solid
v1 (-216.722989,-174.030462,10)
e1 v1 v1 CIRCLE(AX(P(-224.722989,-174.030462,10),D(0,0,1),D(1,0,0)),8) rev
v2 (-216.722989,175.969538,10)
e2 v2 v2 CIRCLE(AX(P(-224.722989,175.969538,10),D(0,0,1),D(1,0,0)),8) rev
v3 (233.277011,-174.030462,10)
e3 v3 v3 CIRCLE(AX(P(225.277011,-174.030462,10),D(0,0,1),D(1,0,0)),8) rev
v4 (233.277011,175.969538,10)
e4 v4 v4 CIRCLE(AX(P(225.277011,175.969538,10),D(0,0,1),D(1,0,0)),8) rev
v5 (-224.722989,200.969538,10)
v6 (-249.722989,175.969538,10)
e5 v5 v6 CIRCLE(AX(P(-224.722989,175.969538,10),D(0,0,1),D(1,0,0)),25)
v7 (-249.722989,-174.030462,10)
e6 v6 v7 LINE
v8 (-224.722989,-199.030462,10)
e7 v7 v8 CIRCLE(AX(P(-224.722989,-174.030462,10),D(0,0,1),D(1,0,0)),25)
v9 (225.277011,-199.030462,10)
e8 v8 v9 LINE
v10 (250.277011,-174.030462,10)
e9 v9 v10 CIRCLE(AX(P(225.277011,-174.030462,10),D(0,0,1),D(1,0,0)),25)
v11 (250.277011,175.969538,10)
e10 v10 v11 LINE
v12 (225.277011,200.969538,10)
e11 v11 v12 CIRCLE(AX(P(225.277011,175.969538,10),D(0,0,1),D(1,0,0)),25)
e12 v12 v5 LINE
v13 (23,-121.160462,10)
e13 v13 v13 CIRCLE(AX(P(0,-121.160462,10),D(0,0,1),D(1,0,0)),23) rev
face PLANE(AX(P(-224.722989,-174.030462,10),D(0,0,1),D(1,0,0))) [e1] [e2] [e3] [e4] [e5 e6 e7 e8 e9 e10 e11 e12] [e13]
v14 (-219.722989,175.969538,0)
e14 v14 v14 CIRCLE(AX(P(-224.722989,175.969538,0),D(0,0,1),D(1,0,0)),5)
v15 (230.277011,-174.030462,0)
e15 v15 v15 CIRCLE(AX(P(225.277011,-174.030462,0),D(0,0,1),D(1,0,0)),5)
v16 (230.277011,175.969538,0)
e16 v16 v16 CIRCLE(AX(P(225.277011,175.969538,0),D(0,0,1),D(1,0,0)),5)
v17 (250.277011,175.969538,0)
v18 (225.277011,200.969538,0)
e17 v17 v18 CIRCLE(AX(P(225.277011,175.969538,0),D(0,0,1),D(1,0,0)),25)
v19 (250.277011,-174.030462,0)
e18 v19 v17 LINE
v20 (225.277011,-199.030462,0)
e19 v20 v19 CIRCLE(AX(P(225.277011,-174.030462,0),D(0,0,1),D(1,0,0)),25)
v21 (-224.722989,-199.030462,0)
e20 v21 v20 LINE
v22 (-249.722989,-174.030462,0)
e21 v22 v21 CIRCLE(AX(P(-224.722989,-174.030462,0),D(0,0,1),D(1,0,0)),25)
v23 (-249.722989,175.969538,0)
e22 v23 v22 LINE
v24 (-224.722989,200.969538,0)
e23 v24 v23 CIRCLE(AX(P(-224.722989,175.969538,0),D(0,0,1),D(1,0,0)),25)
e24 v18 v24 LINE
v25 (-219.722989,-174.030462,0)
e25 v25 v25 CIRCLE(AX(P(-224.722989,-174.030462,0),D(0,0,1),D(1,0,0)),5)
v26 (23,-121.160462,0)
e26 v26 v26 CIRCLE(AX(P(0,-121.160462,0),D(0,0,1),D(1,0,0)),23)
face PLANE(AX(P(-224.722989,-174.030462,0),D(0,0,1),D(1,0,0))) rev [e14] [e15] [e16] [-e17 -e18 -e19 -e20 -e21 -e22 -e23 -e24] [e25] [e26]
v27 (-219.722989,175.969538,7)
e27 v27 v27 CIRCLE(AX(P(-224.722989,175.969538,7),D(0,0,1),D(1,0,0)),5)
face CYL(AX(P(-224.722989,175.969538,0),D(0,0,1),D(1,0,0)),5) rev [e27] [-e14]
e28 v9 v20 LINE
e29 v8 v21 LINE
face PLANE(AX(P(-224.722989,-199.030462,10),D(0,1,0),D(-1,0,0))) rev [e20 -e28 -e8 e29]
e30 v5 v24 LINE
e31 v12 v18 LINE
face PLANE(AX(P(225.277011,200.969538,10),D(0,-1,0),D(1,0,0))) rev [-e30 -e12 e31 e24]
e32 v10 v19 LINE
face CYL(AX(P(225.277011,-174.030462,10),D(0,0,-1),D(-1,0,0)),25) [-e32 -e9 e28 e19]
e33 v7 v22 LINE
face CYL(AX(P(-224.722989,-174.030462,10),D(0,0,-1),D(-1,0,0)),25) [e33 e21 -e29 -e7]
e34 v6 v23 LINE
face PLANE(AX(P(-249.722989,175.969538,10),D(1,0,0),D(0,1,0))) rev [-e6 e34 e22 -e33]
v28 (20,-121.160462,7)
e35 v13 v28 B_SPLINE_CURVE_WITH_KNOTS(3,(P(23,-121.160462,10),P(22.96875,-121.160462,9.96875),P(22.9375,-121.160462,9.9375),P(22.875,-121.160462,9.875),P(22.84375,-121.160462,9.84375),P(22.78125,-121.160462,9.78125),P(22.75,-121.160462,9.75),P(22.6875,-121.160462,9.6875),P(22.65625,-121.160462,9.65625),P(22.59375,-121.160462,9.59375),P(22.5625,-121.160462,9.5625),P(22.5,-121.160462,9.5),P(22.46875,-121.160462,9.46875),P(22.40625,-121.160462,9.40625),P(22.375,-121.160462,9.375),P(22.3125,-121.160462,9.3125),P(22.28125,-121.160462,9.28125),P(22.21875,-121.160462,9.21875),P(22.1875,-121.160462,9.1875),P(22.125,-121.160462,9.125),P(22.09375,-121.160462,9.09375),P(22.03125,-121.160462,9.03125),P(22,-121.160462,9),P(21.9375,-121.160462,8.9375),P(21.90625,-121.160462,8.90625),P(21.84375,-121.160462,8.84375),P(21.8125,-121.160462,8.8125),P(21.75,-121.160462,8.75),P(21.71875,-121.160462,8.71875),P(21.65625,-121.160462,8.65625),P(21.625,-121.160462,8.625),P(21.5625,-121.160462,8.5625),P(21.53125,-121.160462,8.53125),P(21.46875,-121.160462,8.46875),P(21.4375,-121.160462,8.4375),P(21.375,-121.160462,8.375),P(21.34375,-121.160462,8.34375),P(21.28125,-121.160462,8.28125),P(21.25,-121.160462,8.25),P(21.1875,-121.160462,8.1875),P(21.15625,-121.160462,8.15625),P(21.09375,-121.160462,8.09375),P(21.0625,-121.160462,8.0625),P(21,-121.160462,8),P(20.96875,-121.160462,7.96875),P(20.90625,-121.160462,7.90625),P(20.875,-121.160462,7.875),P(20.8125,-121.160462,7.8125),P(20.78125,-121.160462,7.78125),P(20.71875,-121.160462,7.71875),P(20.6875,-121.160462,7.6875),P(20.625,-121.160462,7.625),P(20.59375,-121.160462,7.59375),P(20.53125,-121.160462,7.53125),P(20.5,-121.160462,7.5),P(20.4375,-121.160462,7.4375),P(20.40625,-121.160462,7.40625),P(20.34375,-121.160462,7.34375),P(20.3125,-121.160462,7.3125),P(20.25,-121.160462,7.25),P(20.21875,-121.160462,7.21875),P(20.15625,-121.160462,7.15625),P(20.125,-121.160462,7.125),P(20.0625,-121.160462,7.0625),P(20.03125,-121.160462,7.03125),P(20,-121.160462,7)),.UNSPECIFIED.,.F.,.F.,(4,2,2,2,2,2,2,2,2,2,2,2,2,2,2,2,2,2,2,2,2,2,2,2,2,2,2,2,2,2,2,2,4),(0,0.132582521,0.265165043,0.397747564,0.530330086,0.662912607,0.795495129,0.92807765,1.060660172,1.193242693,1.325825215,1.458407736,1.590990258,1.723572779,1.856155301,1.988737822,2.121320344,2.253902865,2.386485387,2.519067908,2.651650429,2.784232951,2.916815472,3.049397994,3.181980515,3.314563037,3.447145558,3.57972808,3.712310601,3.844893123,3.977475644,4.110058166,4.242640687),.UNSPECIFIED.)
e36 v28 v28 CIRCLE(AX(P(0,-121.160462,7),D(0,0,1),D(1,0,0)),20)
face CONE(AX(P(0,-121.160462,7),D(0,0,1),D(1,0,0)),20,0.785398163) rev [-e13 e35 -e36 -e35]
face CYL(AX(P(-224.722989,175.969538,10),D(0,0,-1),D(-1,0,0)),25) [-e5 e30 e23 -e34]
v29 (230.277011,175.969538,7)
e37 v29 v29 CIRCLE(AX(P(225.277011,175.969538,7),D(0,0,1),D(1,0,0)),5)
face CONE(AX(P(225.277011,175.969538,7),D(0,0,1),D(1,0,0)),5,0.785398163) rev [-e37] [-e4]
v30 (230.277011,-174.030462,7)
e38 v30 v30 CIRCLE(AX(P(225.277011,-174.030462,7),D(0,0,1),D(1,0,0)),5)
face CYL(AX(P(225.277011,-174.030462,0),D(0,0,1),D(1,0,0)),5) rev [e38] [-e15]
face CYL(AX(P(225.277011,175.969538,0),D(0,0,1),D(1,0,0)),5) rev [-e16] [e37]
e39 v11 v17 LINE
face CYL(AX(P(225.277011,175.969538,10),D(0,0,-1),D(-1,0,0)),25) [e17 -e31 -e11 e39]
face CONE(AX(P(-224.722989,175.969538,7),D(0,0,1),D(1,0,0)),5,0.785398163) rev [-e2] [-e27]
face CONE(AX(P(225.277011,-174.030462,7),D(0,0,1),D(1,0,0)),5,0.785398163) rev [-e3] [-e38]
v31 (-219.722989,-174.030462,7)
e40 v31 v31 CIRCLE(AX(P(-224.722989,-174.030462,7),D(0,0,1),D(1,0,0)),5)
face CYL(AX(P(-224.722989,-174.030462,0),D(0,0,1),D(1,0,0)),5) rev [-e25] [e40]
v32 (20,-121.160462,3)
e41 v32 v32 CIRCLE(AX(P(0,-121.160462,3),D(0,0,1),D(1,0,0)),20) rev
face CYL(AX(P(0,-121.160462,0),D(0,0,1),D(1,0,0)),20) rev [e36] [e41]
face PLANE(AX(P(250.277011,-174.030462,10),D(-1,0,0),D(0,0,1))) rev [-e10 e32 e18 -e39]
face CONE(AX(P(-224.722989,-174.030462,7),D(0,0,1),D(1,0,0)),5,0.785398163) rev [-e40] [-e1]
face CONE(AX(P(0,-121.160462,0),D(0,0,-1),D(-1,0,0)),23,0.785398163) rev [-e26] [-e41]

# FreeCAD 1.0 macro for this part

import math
import FreeCAD as App
import Part
import Sketcher
from FreeCAD import Vector


def edges_at(feature, points):
    """Names of the edges that pass closest to the given points."""
    edges = feature.Shape.Edges
    near = lambda p: min(range(len(edges)), key=lambda i: edges[i].distToShape(Part.Vertex(*p))[0])
    return sorted({f"Edge{near(p) + 1}" for p in points})

doc = App.newDocument("Part")
body = doc.addObject("PartDesign::Body", "Body")

# Sketch on XY plane
sketch1 = body.newObject("Sketcher::SketchObject", "Sketch")
sketch1.AttachmentSupport = (doc.getObject("XY_Plane"), [""])
sketch1.MapMode = "FlatFace"
sketch1.addGeometry([
    Part.LineSegment(Vector(-225, -199, 0), Vector(225, -199, 0)),  # 0
    Part.ArcOfCircle(Part.Circle(Vector(225, -174, 0), Vector(0, 0, 1), 25), math.radians(-90), math.radians(0)),  # 1
    Part.LineSegment(Vector(250, -174, 0), Vector(250, 176, 0)),  # 2
    Part.ArcOfCircle(Part.Circle(Vector(225, 176, 0), Vector(0, 0, 1), 25), math.radians(0), math.radians(90)),  # 3
    Part.LineSegment(Vector(225, 201, 0), Vector(-225, 201, 0)),  # 4
    Part.ArcOfCircle(Part.Circle(Vector(-225, 176, 0), Vector(0, 0, 1), 25), math.radians(90), math.radians(180)),  # 5
    Part.LineSegment(Vector(-250, 176, 0), Vector(-250, -174, 0)),  # 6
    Part.ArcOfCircle(Part.Circle(Vector(-225, -174, 0), Vector(0, 0, 1), 25), math.radians(180), math.radians(270)),  # 7
], False)
sketch1.addConstraint([
    Sketcher.Constraint("Tangent", 0, 2, 1, 1),
    Sketcher.Constraint("Tangent", 1, 2, 2, 1),
    Sketcher.Constraint("Tangent", 2, 2, 3, 1),
    Sketcher.Constraint("Tangent", 3, 2, 4, 1),
    Sketcher.Constraint("Tangent", 4, 2, 5, 1),
    Sketcher.Constraint("Tangent", 5, 2, 6, 1),
    Sketcher.Constraint("Tangent", 6, 2, 7, 1),
    Sketcher.Constraint("Tangent", 7, 2, 0, 1),
    Sketcher.Constraint("Horizontal", 0),
    Sketcher.Constraint("Vertical", 2),
    Sketcher.Constraint("Horizontal", 4),
    Sketcher.Constraint("Vertical", 6),
    Sketcher.Constraint("Equal", 1, 3),
    Sketcher.Constraint("Equal", 3, 5),
    Sketcher.Constraint("Equal", 5, 7),
    Sketcher.Constraint("Radius", 1, 25.0),
    Sketcher.Constraint("DistanceX", 0, 1, 0, 2, 450.0),
    Sketcher.Constraint("DistanceY", 2, 1, 2, 2, 350.0),
    Sketcher.Constraint("DistanceX", -1, 1, 1, 3, 225.277011),
    Sketcher.Constraint("DistanceY", 1, 3, -1, 1, 174.030462),
])
pad1 = body.newObject("PartDesign::Pad", "Pad")
pad1.Profile = sketch1
pad1.Length = 10

# Sketch on XY plane
sketch2 = body.newObject("Sketcher::SketchObject", "Sketch001")
sketch2.AttachmentSupport = (doc.getObject("XY_Plane"), [""])
sketch2.MapMode = "FlatFace"
sketch2.AttachmentOffset = App.Placement(Vector(0, 0, 10), App.Rotation())
sketch2.addGeometry([
    Part.Circle(Vector(-225, -174, 0), Vector(0, 0, 1), 5),
    Part.Circle(Vector(225, -174, 0), Vector(0, 0, 1), 5),
    Part.Circle(Vector(225, 176, 0), Vector(0, 0, 1), 5),
    Part.Circle(Vector(-225, 176, 0), Vector(0, 0, 1), 5),
], False)
sketch2.addConstraint([
    Sketcher.Constraint("Equal", 0, 1),
    Sketcher.Constraint("Equal", 1, 2),
    Sketcher.Constraint("Equal", 2, 3),
    Sketcher.Constraint("Horizontal", 0, 3, 1, 3),
    Sketcher.Constraint("Horizontal", 2, 3, 3, 3),
    Sketcher.Constraint("Vertical", 1, 3, 2, 3),
    Sketcher.Constraint("Vertical", 0, 3, 3, 3),
    Sketcher.Constraint("Diameter", 0, 10.0),
    Sketcher.Constraint("DistanceX", 0, 3, 1, 3, 450.0),
    Sketcher.Constraint("DistanceY", 1, 3, 2, 3, 350.0),
    Sketcher.Constraint("DistanceX", 0, 3, -1, 1, 224.722989),
    Sketcher.Constraint("DistanceY", 0, 3, -1, 1, 174.030462),
])
pocket1 = body.newObject("PartDesign::Pocket", "Pocket")
pocket1.Profile = sketch2
pocket1.Length = 10
doc.recompute()

chamfer = body.newObject("PartDesign::Chamfer", "Chamfer")
chamfer.Base = (pocket1, edges_at(pocket1, [
    (-229.723, 175.97, 10),
    (220.277, 175.97, 10),
    (220.277, -174.03, 10),
    (-229.723, -174.03, 10),
]))
chamfer.Size = 3

# Sketch on XY plane
sketch3 = body.newObject("Sketcher::SketchObject", "Sketch002")
sketch3.AttachmentSupport = (doc.getObject("XY_Plane"), [""])
sketch3.MapMode = "FlatFace"
sketch3.AttachmentOffset = App.Placement(Vector(0, 0, 10), App.Rotation())
sketch3.addGeometry(Part.Circle(Vector(0, -121, 0), Vector(0, 0, 1), 20), False)
sketch3.addConstraint([
    Sketcher.Constraint("PointOnObject", 0, 3, -2),
    Sketcher.Constraint("Diameter", 0, 40.0),
    Sketcher.Constraint("DistanceY", 0, 3, -1, 1, 121.160462),
])
pocket2 = body.newObject("PartDesign::Pocket", "Pocket001")
pocket2.Profile = sketch3
pocket2.Length = 10
doc.recompute()

chamfer2 = body.newObject("PartDesign::Chamfer", "Chamfer001")
chamfer2.Base = (pocket2, edges_at(pocket2, [(-20, -121.16, 0), (-20, -121.16, 10)]))
chamfer2.Size = 3

doc.recompute()
